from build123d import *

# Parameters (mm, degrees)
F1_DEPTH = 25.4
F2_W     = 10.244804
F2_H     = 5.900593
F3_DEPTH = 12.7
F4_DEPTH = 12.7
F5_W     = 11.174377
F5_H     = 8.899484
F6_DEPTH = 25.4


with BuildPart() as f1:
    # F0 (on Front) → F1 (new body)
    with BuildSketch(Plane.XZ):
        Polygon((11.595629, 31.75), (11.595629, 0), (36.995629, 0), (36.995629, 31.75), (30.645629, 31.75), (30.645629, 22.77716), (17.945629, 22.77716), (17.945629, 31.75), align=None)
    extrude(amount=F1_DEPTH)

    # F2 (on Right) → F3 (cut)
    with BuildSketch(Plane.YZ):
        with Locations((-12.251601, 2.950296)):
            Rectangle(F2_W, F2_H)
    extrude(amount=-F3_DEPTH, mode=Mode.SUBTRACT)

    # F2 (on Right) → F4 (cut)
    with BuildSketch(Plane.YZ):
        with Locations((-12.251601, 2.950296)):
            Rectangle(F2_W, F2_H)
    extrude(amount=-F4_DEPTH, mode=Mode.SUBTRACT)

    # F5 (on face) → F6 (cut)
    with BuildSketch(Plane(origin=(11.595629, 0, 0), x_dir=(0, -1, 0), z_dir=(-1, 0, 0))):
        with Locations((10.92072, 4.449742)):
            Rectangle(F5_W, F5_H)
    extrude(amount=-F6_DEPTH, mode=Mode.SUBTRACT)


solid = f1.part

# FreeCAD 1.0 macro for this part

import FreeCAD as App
import Part
import Sketcher

V = App.Vector
Q = App.Units.Quantity

doc = App.newDocument("Part")
params = doc.addObject("Spreadsheet::Sheet", "Params")
for row, (alias, value) in enumerate([
    ("sketch1_width", "1 in"),
    ("sketch1_width2", "0.5 in"),
    ("sketch1_height", "1.25 in"),
    ("pad1_length", "1 in"),
    ("pocket1_length", "0.5 in"),
    ("pocket2_length", "0.5 in"),
    ("pocket3_length", "1 in"),
], start=1):
    params.set(f"A{row}", alias)
    params.set(f"B{row}", "=" + value)
    params.setAlias(f"B{row}", alias)

body = doc.addObject("PartDesign::Body", "Body")

sketch1 = doc.addObject("Sketcher::SketchObject", "Sketch")
body.addObject(sketch1)
sketch1.AttachmentSupport = (doc.XZ_Plane, [""])
sketch1.MapMode = "FlatFace"
sketch1.addGeometry([
    Part.LineSegment(V(12, 32, 0), V(12, 0, 0)),
    Part.LineSegment(V(12, 0, 0), V(37, 0, 0)),
    Part.LineSegment(V(37, 0, 0), V(37, 32, 0)),
    Part.LineSegment(V(37, 32, 0), V(31, 32, 0)),
    Part.LineSegment(V(31, 32, 0), V(31, 23, 0)),
    Part.LineSegment(V(31, 23, 0), V(18, 23, 0)),
    Part.LineSegment(V(18, 23, 0), V(18, 32, 0)),
    Part.LineSegment(V(18, 32, 0), V(12, 32, 0)),
], False)
sketch1.addConstraint([
    Sketcher.Constraint("Coincident", 0, 2, 1, 1),
    Sketcher.Constraint("Coincident", 1, 2, 2, 1),
    Sketcher.Constraint("Coincident", 2, 2, 3, 1),
    Sketcher.Constraint("Coincident", 3, 2, 4, 1),
    Sketcher.Constraint("Coincident", 4, 2, 5, 1),
    Sketcher.Constraint("Coincident", 5, 2, 6, 1),
    Sketcher.Constraint("Coincident", 6, 2, 7, 1),
    Sketcher.Constraint("Coincident", 7, 2, 0, 1),
    Sketcher.Constraint("Vertical", 0),
    Sketcher.Constraint("Horizontal", 1),
    Sketcher.Constraint("Vertical", 2),
    Sketcher.Constraint("Horizontal", 3),
    Sketcher.Constraint("Vertical", 4),
    Sketcher.Constraint("Horizontal", 5),
    Sketcher.Constraint("Vertical", 6),
    Sketcher.Constraint("Horizontal", 7),
    Sketcher.Constraint("PointOnObject", 0, 2, -1),
    Sketcher.Constraint("Horizontal", 3, 2, 6, 2),
    Sketcher.Constraint("Equal", 3, 7),
    Sketcher.Constraint("DistanceX", 1, 1, 1, 2, Q("1 in")),
    Sketcher.Constraint("DistanceX", 5, 2, 5, 1, Q("0.5 in")),
    Sketcher.Constraint("DistanceY", 0, 2, 0, 1, Q("1.25 in")),
    Sketcher.Constraint("DistanceY", 4, 2, 4, 1, 8.97284),
    Sketcher.Constraint("DistanceX", -1, 1, 0, 2, 11.595629),
])
sketch1.setExpression("Constraints[19]", "Params.sketch1_width")
sketch1.setExpression("Constraints[20]", "Params.sketch1_width2")
sketch1.setExpression("Constraints[21]", "Params.sketch1_height")
pad1 = doc.addObject("PartDesign::Pad", "Pad")
body.addObject(pad1)
pad1.Profile = sketch1
pad1.setExpression("Length", "Params.pad1_length")

sketch2 = doc.addObject("Sketcher::SketchObject", "Sketch001")
body.addObject(sketch2)
sketch2.AttachmentSupport = (doc.YZ_Plane, [""])
sketch2.MapMode = "FlatFace"
sketch2.addGeometry([
    Part.LineSegment(V(-17, 6, 0), V(-17, 0, 0)),
    Part.LineSegment(V(-17, 0, 0), V(-7, 0, 0)),
    Part.LineSegment(V(-7, 0, 0), V(-7, 6, 0)),
    Part.LineSegment(V(-7, 6, 0), V(-17, 6, 0)),
], False)
sketch2.addConstraint([
    Sketcher.Constraint("Coincident", 0, 2, 1, 1),
    Sketcher.Constraint("Coincident", 1, 2, 2, 1),
    Sketcher.Constraint("Coincident", 2, 2, 3, 1),
    Sketcher.Constraint("Coincident", 3, 2, 0, 1),
    Sketcher.Constraint("Vertical", 0),
    Sketcher.Constraint("Horizontal", 1),
    Sketcher.Constraint("Vertical", 2),
    Sketcher.Constraint("Horizontal", 3),
    Sketcher.Constraint("PointOnObject", 0, 2, -1),
    Sketcher.Constraint("DistanceX", 1, 2, -1, 1, 7.129199),
    Sketcher.Constraint("DistanceX", 1, 1, 1, 2, 10.244804),
    Sketcher.Constraint("DistanceY", 0, 2, 0, 1, 5.900593),
])
pocket1 = doc.addObject("PartDesign::Pocket", "Pocket")
body.addObject(pocket1)
pocket1.Profile = sketch2
pocket1.setExpression("Length", "Params.pocket1_length")

sketch3 = doc.addObject("Sketcher::SketchObject", "Sketch002")
body.addObject(sketch3)
sketch3.AttachmentSupport = (doc.YZ_Plane, [""])
sketch3.MapMode = "FlatFace"
sketch3.addGeometry([
    Part.LineSegment(V(-17, 6, 0), V(-17, 0, 0)),
    Part.LineSegment(V(-17, 0, 0), V(-7, 0, 0)),
    Part.LineSegment(V(-7, 0, 0), V(-7, 6, 0)),
    Part.LineSegment(V(-7, 6, 0), V(-17, 6, 0)),
], False)
sketch3.addConstraint([
    Sketcher.Constraint("Coincident", 0, 2, 1, 1),
    Sketcher.Constraint("Coincident", 1, 2, 2, 1),
    Sketcher.Constraint("Coincident", 2, 2, 3, 1),
    Sketcher.Constraint("Coincident", 3, 2, 0, 1),
    Sketcher.Constraint("Vertical", 0),
    Sketcher.Constraint("Horizontal", 1),
    Sketcher.Constraint("Vertical", 2),
    Sketcher.Constraint("Horizontal", 3),
    Sketcher.Constraint("PointOnObject", 0, 2, -1),
    Sketcher.Constraint("DistanceX", 1, 2, -1, 1, 7.129199),
    Sketcher.Constraint("DistanceX", 1, 1, 1, 2, 10.244804),
    Sketcher.Constraint("DistanceY", 0, 2, 0, 1, 5.900593),
])
pocket2 = doc.addObject("PartDesign::Pocket", "Pocket001")
body.addObject(pocket2)
pocket2.Profile = sketch3
pocket2.setExpression("Length", "Params.pocket2_length")

sketch4 = doc.addObject("Sketcher::SketchObject", "Sketch003")
body.addObject(sketch4)
sketch4.AttachmentSupport = (doc.YZ_Plane, [""])
sketch4.MapMode = "FlatFace"
sketch4.AttachmentOffset = App.Placement(V(0, 0, 11.595629), App.Rotation())
sketch4.addGeometry([
    Part.LineSegment(V(-5, 9, 0), V(-5, 0, 0)),
    Part.LineSegment(V(-5, 0, 0), V(-17, 0, 0)),
    Part.LineSegment(V(-17, 0, 0), V(-17, 9, 0)),
    Part.LineSegment(V(-17, 9, 0), V(-5, 9, 0)),
], False)
sketch4.addConstraint([
    Sketcher.Constraint("Coincident", 0, 2, 1, 1),
    Sketcher.Constraint("Coincident", 1, 2, 2, 1),
    Sketcher.Constraint("Coincident", 2, 2, 3, 1),
    Sketcher.Constraint("Coincident", 3, 2, 0, 1),
    Sketcher.Constraint("Vertical", 0),
    Sketcher.Constraint("Horizontal", 1),
    Sketcher.Constraint("Vertical", 2),
    Sketcher.Constraint("Horizontal", 3),
    Sketcher.Constraint("PointOnObject", 0, 2, -1),
    Sketcher.Constraint("DistanceX", 1, 2, 1, 1, 11.174377),
    Sketcher.Constraint("DistanceY", 0, 2, 0, 1, 8.899484),
    Sketcher.Constraint("DistanceX", 0, 2, -1, 1, 5.333532),
])
pocket3 = doc.addObject("PartDesign::Pocket", "Pocket002")
body.addObject(pocket3)
pocket3.Profile = sketch4
pocket3.setExpression("Length", "Params.pocket3_length")
pocket3.Reversed = True

doc.recompute()
